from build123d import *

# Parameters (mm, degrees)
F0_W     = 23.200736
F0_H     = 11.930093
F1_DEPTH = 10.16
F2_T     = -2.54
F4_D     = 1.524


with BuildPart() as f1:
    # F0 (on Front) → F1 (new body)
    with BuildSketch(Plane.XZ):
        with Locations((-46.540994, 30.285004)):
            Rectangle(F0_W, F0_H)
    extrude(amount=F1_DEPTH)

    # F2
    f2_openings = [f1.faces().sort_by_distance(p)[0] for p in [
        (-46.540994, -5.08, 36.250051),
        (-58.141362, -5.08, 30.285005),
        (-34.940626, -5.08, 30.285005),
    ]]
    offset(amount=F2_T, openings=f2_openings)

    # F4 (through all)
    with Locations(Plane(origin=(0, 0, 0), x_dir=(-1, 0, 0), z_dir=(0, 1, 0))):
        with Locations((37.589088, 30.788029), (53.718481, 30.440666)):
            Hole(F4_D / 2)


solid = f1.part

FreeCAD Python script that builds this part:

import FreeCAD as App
import Part
import Sketcher
from FreeCAD import Vector
Q = App.Units.Quantity


def faces_at(feature, points):
    """Names of the faces that lie closest to the given points."""
    faces = feature.Shape.Faces
    near = lambda p: min(range(len(faces)), key=lambda i: faces[i].distToShape(Part.Vertex(*p))[0])
    return sorted({f"Face{near(p) + 1}" for p in points})

doc = App.newDocument("Part")
body = doc.addObject("PartDesign::Body", "Body")

# Sketch on XZ plane
sketch1 = body.newObject("Sketcher::SketchObject", "Sketch")
sketch1.AttachmentSupport = (doc.getObject("XZ_Plane"), [""])
sketch1.MapMode = "FlatFace"
sketch1.addGeometry([
    Part.LineSegment(Vector(-58, 36, 0), Vector(-58, 24, 0)),
    Part.LineSegment(Vector(-58, 24, 0), Vector(-35, 24, 0)),
    Part.LineSegment(Vector(-35, 24, 0), Vector(-35, 36, 0)),
    Part.LineSegment(Vector(-35, 36, 0), Vector(-58, 36, 0)),
], False)
sketch1.addConstraint([
    Sketcher.Constraint("Coincident", 0, 2, 1, 1),
    Sketcher.Constraint("Coincident", 1, 2, 2, 1),
    Sketcher.Constraint("Coincident", 2, 2, 3, 1),
    Sketcher.Constraint("Coincident", 3, 2, 0, 1),
    Sketcher.Constraint("Vertical", 0),
    Sketcher.Constraint("Horizontal", 1),
    Sketcher.Constraint("Vertical", 2),
    Sketcher.Constraint("Horizontal", 3),
    Sketcher.Constraint("DistanceX", 1, 1, 1, 2, 23.200736),
    Sketcher.Constraint("DistanceY", 0, 2, 0, 1, 11.930093),
    Sketcher.Constraint("DistanceY", -1, 1, 2, 2, 36.250051),
    Sketcher.Constraint("DistanceX", 0, 2, -1, 1, 58.141362),
])
pad1 = body.newObject("PartDesign::Pad", "Pad")
pad1.Profile = sketch1
pad1.Length = Q("0.4 in")
doc.recompute()

thickness = body.newObject("PartDesign::Thickness", "Thickness")
thickness.Base = (pad1, faces_at(pad1, [(-46.541, -5.08, 36.25), (-58.141, -5.08, 30.285), (-34.941, -5.08, 30.285)]))
thickness.Value = Q("0.1 in")
thickness.Reversed = True
thickness.Join = "Arc"

# Sketch on XZ plane
sketch2 = body.newObject("Sketcher::SketchObject", "Sketch001")
sketch2.AttachmentSupport = (doc.getObject("XZ_Plane"), [""])
sketch2.MapMode = "FlatFace"
sketch2.addGeometry([
    Part.Circle(Vector(-37.6, 30.8, 0), Vector(0, 0, 1), 0.8),
    Part.Circle(Vector(-53.7, 30.4, 0), Vector(0, 0, 1), 0.8),
], False)
sketch2.addConstraint([
    Sketcher.Constraint("Equal", 0, 1),
    Sketcher.Constraint("Diameter", 0, Q("0.06 in")),
    Sketcher.Constraint("DistanceY", -1, 1, 0, 3, 30.788029),
    Sketcher.Constraint("DistanceX", 1, 3, -1, 1, 53.718481),
    Sketcher.Constraint("DistanceX", 0, 3, -1, 1, 37.589088),
    Sketcher.Constraint("DistanceY", -1, 1, 1, 3, 30.440666),
])
doc.recompute()
hole = body.newObject("PartDesign::Hole", "Hole")
hole.Profile = sketch2
hole.ThreadType = "None"
hole.Diameter = Q("0.06 in")
hole.DepthType = "ThroughAll"
hole.Reversed = True

doc.recompute()
